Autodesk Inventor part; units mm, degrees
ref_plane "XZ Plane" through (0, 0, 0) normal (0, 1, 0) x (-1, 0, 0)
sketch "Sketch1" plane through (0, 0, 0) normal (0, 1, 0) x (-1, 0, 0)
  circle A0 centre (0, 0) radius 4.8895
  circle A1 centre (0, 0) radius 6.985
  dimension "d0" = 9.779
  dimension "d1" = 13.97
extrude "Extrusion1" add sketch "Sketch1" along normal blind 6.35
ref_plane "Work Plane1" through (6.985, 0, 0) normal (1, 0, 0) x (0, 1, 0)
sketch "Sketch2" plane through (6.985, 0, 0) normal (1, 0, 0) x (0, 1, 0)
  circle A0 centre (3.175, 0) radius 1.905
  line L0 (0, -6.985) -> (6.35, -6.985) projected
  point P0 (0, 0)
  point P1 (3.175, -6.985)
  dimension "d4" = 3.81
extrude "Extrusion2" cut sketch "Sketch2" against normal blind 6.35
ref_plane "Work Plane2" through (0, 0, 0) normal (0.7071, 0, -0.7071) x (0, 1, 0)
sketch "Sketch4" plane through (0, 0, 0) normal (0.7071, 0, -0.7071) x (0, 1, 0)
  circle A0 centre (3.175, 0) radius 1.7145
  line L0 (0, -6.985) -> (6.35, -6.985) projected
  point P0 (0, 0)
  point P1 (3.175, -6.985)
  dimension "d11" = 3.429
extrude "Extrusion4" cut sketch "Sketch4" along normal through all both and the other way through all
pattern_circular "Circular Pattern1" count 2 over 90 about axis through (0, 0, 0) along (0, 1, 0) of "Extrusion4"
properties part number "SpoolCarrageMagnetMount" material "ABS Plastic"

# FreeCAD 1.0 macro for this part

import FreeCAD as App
import Part
import Sketcher

V = App.Vector
Q = App.Units.Quantity

doc = App.newDocument("Part")
params = doc.addObject("Spreadsheet::Sheet", "Params")
for row, (alias, value) in enumerate([
    ("sketch1_diameter", "0.55 in"),
    ("sketch1_diameter2", "0.385 in"),
    ("pad1_length", "0.25 in"),
    ("sketch2_diameter", "0.15 in"),
    ("pocket1_length", "0.25 in"),
    ("sketch3_diameter", "0.135 in"),
], start=1):
    params.set(f"A{row}", alias)
    params.set(f"B{row}", "=" + value)
    params.setAlias(f"B{row}", alias)

body = doc.addObject("PartDesign::Body", "Body")

# Sketch on XZ plane
sketch1 = body.newObject("Sketcher::SketchObject", "Sketch")
sketch1.AttachmentSupport = (doc.getObject("XZ_Plane"), [""])
sketch1.MapMode = "FlatFace"
sketch1.addGeometry(Part.Circle(V(0, 0, 0), V(0, 0, 1), 7), False)
sketch1.addGeometry(Part.Circle(V(0, 0, 0), V(0, 0, 1), 4.9), False)
sketch1.addConstraint(Sketcher.Constraint("Coincident", 0, 3, -1, 1))
sketch1.addConstraint(Sketcher.Constraint("Coincident", 1, 3, -1, 1))
sketch1.addConstraint(Sketcher.Constraint("Diameter", 0, Q("0.55 in")))
sketch1.addConstraint(Sketcher.Constraint("Diameter", 1, Q("0.385 in")))
sketch1.setExpression("Constraints[2]", "Params.sketch1_diameter")
sketch1.setExpression("Constraints[3]", "Params.sketch1_diameter2")
pad1 = body.newObject("PartDesign::Pad", "Pad")
pad1.Profile = sketch1
pad1.setExpression("Length", "Params.pad1_length")
pad1.Reversed = True

# Sketch on YZ plane
sketch2 = body.newObject("Sketcher::SketchObject", "Sketch001")
sketch2.AttachmentSupport = (doc.getObject("YZ_Plane"), [""])
sketch2.MapMode = "FlatFace"
sketch2.AttachmentOffset = App.Placement(V(0, 0, 0.275 * 25.4), App.Rotation())
sketch2.addGeometry(Part.Circle(V(3.2, 0, 0), V(0, 0, 1), 1.9), False)
sketch2.addConstraint(Sketcher.Constraint("PointOnObject", 0, 3, -1))
sketch2.addConstraint(Sketcher.Constraint("Diameter", 0, Q("0.15 in")))
sketch2.addConstraint(Sketcher.Constraint("DistanceX", -1, 1, 0, 3, Q("0.125 in")))
sketch2.setExpression("Constraints[1]", "Params.sketch2_diameter")
pocket1 = body.newObject("PartDesign::Pocket", "Pocket")
pocket1.Profile = sketch2
pocket1.setExpression("Length", "Params.pocket1_length")

# Sketch on an angled plane
sketch3 = body.newObject("Sketcher::SketchObject", "Sketch002")
sketch3.Placement = App.Placement(V(0, 0, 0), App.Rotation(V(0, 1, 0), V(0.707106781, 0, 0.707106781), V(0.707106781, 0, -0.707106781), "ZXY"))
sketch3.addGeometry(Part.Circle(V(3.2, 0, 0), V(0, 0, 1), 1.7), False)
sketch3.addConstraint(Sketcher.Constraint("PointOnObject", 0, 3, -1))
sketch3.addConstraint(Sketcher.Constraint("Diameter", 0, Q("0.135 in")))
sketch3.addConstraint(Sketcher.Constraint("DistanceX", -1, 1, 0, 3, Q("0.125 in")))
sketch3.setExpression("Constraints[1]", "Params.sketch3_diameter")
pocket2 = body.newObject("PartDesign::Pocket", "Pocket001")
pocket2.Profile = sketch3
pocket2.Type = "ThroughAll"
pocket2.Midplane = True
doc.recompute()

polarpattern = body.newObject("PartDesign::PolarPattern", "PolarPattern")
polarpattern.Originals = [pocket2]
polarpattern.Axis = (doc.getObject("Y_Axis"), [""])
polarpattern.Angle = 90
polarpattern.Occurrences = 2
body.Tip = polarpattern

doc.recompute()
